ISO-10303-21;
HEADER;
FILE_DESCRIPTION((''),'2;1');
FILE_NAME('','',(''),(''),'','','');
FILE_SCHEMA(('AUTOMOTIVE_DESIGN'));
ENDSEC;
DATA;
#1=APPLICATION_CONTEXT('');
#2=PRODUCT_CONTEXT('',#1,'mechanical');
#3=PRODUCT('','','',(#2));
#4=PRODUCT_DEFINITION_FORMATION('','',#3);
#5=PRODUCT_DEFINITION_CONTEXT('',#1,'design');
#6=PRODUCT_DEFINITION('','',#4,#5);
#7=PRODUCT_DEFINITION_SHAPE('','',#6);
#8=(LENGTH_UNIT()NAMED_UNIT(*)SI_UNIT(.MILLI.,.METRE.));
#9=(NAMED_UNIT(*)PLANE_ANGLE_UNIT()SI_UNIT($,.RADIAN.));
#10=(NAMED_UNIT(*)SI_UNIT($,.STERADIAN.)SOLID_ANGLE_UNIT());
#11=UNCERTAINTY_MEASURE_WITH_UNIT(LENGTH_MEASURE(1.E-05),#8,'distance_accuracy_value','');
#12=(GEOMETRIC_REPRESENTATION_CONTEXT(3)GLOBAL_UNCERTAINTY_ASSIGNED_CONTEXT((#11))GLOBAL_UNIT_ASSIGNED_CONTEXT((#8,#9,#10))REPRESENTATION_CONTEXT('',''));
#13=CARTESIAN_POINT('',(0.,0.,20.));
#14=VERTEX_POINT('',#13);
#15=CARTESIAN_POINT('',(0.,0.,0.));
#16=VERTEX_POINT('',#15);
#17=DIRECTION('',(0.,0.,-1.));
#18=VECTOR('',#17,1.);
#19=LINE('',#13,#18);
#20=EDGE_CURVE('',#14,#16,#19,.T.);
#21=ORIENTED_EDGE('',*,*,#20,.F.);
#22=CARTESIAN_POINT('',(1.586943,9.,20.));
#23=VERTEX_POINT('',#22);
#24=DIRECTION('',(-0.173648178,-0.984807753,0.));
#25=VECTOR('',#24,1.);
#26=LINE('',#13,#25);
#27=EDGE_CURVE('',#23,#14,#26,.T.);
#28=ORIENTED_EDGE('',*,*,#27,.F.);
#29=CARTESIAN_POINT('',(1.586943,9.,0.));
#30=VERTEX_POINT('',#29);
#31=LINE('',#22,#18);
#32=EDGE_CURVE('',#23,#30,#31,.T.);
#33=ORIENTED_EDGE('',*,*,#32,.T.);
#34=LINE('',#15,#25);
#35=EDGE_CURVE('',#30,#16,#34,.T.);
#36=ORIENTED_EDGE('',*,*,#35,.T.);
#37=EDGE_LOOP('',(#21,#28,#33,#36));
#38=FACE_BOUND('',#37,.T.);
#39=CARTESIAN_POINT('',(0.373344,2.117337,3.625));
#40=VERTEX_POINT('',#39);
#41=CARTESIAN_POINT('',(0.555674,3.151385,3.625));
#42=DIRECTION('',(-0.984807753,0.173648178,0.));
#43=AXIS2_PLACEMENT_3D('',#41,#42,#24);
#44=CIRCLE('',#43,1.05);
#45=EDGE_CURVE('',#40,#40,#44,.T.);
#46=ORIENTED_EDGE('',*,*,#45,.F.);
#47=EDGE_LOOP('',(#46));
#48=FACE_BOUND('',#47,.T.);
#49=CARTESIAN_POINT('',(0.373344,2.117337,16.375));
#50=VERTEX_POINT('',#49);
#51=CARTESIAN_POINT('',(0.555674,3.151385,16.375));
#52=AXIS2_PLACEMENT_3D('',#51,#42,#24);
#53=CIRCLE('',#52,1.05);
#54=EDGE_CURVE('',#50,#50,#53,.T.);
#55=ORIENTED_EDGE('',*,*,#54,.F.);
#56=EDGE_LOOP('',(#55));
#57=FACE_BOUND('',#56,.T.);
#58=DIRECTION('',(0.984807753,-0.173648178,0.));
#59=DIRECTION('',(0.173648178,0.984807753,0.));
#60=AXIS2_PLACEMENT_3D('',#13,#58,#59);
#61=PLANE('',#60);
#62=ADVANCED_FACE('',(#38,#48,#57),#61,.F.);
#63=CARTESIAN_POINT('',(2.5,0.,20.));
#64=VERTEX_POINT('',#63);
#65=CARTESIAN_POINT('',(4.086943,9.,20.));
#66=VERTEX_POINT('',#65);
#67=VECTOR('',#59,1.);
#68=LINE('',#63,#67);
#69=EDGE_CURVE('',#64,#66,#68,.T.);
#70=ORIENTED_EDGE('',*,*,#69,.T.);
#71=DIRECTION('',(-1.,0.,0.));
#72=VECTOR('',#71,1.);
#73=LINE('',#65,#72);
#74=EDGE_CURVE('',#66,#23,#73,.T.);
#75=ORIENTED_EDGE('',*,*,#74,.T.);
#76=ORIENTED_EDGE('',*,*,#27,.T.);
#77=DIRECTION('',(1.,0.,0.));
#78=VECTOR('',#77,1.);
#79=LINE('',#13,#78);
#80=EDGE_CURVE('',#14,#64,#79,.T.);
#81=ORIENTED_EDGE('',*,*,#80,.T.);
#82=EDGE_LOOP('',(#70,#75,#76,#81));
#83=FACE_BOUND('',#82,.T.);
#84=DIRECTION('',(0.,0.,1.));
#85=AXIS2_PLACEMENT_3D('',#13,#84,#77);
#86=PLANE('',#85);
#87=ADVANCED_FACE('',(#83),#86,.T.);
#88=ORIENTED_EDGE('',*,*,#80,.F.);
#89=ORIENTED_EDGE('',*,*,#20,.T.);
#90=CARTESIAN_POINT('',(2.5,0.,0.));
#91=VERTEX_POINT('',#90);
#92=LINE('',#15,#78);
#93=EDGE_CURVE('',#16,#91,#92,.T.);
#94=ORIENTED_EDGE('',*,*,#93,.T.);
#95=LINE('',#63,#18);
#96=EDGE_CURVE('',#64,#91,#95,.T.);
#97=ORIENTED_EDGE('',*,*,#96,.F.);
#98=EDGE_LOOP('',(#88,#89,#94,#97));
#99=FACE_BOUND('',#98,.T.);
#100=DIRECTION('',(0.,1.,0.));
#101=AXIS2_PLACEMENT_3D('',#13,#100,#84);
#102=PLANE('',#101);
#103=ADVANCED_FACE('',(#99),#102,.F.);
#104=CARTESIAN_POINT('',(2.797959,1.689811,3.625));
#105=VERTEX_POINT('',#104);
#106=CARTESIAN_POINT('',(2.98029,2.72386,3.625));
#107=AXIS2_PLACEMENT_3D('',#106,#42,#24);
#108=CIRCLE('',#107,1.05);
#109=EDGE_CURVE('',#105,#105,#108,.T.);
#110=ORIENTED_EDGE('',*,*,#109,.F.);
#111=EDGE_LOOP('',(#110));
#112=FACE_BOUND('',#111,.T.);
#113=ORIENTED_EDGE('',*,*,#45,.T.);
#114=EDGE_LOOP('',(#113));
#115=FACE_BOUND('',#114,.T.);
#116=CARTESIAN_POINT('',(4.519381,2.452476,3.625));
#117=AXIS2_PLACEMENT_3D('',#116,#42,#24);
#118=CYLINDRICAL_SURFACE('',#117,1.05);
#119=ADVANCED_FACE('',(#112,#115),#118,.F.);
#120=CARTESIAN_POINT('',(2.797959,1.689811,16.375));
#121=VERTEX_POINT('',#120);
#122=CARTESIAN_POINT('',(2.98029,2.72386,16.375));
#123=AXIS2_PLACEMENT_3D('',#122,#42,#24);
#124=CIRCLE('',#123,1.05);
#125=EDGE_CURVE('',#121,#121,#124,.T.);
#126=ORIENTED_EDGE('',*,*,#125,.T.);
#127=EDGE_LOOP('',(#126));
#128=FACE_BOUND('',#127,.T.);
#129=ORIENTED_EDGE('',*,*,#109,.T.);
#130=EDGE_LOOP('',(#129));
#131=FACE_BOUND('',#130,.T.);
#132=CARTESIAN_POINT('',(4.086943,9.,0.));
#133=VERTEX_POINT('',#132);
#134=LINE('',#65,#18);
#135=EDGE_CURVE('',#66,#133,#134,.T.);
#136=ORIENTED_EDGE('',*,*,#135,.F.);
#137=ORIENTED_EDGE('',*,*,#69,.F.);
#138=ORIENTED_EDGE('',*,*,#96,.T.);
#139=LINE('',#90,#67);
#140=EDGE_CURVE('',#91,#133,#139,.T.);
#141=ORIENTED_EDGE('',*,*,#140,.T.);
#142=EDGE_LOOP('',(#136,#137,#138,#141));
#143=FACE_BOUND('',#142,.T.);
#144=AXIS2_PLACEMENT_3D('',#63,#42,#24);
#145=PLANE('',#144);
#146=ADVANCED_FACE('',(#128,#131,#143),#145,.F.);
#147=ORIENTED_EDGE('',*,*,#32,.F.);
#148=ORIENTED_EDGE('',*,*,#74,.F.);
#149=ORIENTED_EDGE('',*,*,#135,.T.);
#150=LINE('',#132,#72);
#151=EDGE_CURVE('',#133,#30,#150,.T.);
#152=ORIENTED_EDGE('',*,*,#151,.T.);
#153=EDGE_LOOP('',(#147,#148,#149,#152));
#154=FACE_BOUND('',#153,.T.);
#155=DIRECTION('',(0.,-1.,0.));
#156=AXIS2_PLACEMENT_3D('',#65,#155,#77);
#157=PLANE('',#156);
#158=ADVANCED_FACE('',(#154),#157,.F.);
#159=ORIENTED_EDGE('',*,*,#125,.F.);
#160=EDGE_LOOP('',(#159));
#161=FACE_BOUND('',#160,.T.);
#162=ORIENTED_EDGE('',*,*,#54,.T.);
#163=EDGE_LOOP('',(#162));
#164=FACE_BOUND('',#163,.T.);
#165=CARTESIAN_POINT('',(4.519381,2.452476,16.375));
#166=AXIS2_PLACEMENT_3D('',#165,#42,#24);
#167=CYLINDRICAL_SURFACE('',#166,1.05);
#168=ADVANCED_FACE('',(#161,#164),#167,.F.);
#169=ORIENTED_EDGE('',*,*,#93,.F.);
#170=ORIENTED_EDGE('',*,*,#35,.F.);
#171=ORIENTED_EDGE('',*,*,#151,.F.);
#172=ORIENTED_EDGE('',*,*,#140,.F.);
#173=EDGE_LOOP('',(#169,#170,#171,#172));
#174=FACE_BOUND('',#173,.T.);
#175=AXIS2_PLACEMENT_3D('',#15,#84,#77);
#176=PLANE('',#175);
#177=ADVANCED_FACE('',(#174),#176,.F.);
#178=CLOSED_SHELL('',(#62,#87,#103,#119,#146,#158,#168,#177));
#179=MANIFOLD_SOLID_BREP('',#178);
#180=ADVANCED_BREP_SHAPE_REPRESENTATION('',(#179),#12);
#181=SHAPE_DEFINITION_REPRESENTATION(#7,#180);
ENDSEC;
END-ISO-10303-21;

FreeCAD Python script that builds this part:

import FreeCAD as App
import Part
import Sketcher

V = App.Vector
Q = App.Units.Quantity

doc = App.newDocument("Part")
body = doc.addObject("PartDesign::Body", "Body")

sketch1 = body.newObject("Sketcher::SketchObject", "Sketch")
sketch1.AttachmentSupport = (doc.getObject("XY_Plane"), [""])
sketch1.MapMode = "FlatFace"
sketch1.addGeometry([
    Part.LineSegment(V(0, 0, 0), V(2.5, 0, 0)),
    Part.LineSegment(V(2.5, 0, 0), V(4.086943, 9, 0)),
    Part.LineSegment(V(4.086943, 9, 0), V(1.586943, 9, 0)),
    Part.LineSegment(V(1.586943, 9, 0), V(0, 0, 0)),
], False)
sketch1.addConstraint([
    Sketcher.Constraint("Coincident", 0, 2, 1, 1),
    Sketcher.Constraint("Coincident", 1, 2, 2, 1),
    Sketcher.Constraint("Coincident", 2, 2, 3, 1),
    Sketcher.Constraint("Coincident", 3, 2, 0, 1),
    Sketcher.Constraint("Horizontal", 0),
    Sketcher.Constraint("Horizontal", 2),
    Sketcher.Constraint("Coincident", 3, 2, -1, 1),
    Sketcher.Constraint("Parallel", 1, 3),
    Sketcher.Constraint("Angle", 1, Q("80 deg")),
    Sketcher.Constraint("DistanceX", 0, 1, 0, 2, Q("2.5 mm")),
    Sketcher.Constraint("DistanceY", -1, 1, 1, 2, Q("9 mm")),
])
pad1 = body.newObject("PartDesign::Pad", "Pad")
pad1.Profile = sketch1
pad1.Length = 20

sketch2 = body.newObject("Sketcher::SketchObject", "Sketch001")
sketch2.Placement = App.Placement(V(0, 0, 0), App.Rotation(V(0, 0, 1), V(0.173648178, 0.984807753, 0), V(-0.984807753, 0.173648178, 0), "ZXY"))
sketch2.addGeometry([
    Part.Circle(V(3.625, 3.2, 0), V(0, 0, 1), 1.05),
    Part.Circle(V(16.375, 3.2, 0), V(0, 0, 1), 1.05),
], False)
sketch2.addConstraint([
    Sketcher.Constraint("Equal", 0, 1),
    Sketcher.Constraint("Horizontal", 0, 3, 1, 3),
    Sketcher.Constraint("Diameter", 0, Q("2.1 mm")),
    Sketcher.Constraint("DistanceY", -1, 1, 0, 3, Q("3.2 mm")),
    Sketcher.Constraint("DistanceX", 0, 3, 1, 3, Q("12.75 mm")),
    Sketcher.Constraint("DistanceX", -1, 1, 0, 3, Q("3.625 mm")),
])
pocket1 = body.newObject("PartDesign::Pocket", "Pocket")
pocket1.Profile = sketch2
pocket1.Type = "ThroughAll"

doc.recompute()
